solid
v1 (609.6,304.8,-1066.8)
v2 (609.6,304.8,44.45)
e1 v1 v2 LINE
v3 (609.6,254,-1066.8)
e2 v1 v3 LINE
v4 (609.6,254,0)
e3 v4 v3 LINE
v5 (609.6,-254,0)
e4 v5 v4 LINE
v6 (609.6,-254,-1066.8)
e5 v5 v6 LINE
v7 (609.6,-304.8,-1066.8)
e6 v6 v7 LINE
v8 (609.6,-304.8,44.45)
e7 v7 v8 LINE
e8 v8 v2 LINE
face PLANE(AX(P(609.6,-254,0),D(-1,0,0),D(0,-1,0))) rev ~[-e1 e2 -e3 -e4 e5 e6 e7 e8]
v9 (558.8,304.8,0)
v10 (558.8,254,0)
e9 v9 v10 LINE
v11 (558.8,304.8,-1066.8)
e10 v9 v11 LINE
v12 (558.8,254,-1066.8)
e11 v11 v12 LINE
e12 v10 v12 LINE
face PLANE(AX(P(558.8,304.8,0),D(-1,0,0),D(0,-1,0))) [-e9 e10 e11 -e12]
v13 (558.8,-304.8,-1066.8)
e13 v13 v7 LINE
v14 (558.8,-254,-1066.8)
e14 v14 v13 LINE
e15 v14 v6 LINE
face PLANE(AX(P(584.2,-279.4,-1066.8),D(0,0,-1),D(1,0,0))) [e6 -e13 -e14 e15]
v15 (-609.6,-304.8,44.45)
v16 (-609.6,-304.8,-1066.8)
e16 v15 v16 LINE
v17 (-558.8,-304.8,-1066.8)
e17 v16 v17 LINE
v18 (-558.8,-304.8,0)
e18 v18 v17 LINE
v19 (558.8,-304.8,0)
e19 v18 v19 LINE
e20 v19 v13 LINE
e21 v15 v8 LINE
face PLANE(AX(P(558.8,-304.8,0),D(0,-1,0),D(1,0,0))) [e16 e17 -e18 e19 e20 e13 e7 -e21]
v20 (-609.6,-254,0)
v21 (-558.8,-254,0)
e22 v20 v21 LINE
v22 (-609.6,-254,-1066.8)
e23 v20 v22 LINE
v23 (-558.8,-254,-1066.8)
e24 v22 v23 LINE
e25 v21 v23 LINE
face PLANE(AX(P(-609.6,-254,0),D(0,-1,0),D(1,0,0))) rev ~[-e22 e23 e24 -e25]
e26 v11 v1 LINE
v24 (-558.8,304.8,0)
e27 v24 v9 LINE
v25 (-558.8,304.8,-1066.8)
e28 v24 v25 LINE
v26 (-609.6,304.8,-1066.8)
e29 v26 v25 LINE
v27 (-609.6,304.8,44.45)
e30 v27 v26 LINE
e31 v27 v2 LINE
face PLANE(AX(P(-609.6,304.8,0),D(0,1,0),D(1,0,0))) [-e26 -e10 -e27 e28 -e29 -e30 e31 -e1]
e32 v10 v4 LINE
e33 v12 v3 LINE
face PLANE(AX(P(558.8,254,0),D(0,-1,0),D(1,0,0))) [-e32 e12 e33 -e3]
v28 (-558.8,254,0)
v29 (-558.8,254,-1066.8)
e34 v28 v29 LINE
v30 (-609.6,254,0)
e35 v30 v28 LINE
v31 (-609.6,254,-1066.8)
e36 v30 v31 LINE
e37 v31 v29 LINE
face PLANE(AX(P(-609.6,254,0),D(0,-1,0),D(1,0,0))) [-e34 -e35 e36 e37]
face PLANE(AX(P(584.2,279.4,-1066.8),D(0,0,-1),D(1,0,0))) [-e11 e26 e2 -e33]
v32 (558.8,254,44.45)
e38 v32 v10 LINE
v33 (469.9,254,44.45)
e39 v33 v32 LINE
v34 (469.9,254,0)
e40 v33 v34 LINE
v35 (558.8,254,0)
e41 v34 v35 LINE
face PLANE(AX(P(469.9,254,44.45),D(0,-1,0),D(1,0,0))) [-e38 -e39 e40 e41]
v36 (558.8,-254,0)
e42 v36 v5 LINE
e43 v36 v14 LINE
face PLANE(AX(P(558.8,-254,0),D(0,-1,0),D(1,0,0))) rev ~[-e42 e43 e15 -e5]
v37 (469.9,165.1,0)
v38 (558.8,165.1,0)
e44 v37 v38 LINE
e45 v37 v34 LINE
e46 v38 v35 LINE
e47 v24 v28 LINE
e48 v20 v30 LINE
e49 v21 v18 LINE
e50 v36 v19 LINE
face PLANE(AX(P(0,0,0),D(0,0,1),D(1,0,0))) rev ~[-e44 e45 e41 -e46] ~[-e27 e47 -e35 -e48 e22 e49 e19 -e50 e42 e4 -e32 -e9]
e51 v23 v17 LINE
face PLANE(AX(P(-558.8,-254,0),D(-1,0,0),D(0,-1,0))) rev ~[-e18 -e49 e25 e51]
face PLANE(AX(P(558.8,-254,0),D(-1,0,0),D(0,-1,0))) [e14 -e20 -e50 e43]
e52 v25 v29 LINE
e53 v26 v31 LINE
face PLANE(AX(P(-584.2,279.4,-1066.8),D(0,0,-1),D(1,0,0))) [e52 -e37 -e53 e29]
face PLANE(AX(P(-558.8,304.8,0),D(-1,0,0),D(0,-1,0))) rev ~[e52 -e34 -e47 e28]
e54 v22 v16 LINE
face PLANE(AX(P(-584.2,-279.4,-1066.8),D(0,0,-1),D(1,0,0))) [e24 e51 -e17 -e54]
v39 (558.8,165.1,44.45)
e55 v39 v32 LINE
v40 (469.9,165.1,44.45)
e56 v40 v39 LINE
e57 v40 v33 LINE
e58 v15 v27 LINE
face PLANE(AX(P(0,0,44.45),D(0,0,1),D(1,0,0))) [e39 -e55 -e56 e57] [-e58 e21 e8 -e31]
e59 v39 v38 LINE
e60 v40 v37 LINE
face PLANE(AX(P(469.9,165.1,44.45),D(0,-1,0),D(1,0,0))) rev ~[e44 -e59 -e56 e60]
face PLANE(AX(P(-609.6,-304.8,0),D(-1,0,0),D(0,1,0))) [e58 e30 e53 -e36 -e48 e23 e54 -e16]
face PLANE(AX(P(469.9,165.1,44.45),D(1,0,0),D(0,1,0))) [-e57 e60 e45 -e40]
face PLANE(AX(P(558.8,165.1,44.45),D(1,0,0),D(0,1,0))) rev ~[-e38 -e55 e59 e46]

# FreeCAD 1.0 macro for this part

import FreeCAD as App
import Part
import Sketcher

V = App.Vector
Q = App.Units.Quantity

doc = App.newDocument("Part")
body = doc.addObject("PartDesign::Body", "Body")

# Sketch on XY plane
sketch1 = body.newObject("Sketcher::SketchObject", "Sketch")
sketch1.AttachmentSupport = (doc.getObject("XY_Plane"), [""])
sketch1.MapMode = "FlatFace"
sketch1.addGeometry([
    Part.LineSegment(V(-610, 305, 0), V(-610, -305, 0)),
    Part.LineSegment(V(-610, -305, 0), V(610, -305, 0)),
    Part.LineSegment(V(610, -305, 0), V(610, 305, 0)),
    Part.LineSegment(V(610, 305, 0), V(-610, 305, 0)),
], False)
sketch1.addConstraint([
    Sketcher.Constraint("Coincident", 0, 2, 1, 1),
    Sketcher.Constraint("Coincident", 1, 2, 2, 1),
    Sketcher.Constraint("Coincident", 2, 2, 3, 1),
    Sketcher.Constraint("Coincident", 3, 2, 0, 1),
    Sketcher.Constraint("Vertical", 0),
    Sketcher.Constraint("Horizontal", 1),
    Sketcher.Constraint("Vertical", 2),
    Sketcher.Constraint("Horizontal", 3),
    Sketcher.Constraint("Symmetric", 0, 2, 2, 2, -1, 1),
    Sketcher.Constraint("DistanceX", 1, 1, 1, 2, Q("48 in")),
    Sketcher.Constraint("DistanceY", 0, 2, 0, 1, Q("24 in")),
])
pad1 = body.newObject("PartDesign::Pad", "Pad")
pad1.Profile = sketch1
pad1.Length = Q("1.75 in")

# Sketch on XY plane
sketch2 = body.newObject("Sketcher::SketchObject", "Sketch001")
sketch2.AttachmentSupport = (doc.getObject("XY_Plane"), [""])
sketch2.MapMode = "FlatFace"
sketch2.AttachmentOffset = App.Placement(V(0, 0, 1.75 * 25.4), App.Rotation())
sketch2.addGeometry([
    Part.LineSegment(V(470, 254, 0), V(470, 165, 0)),
    Part.LineSegment(V(470, 165, 0), V(559, 165, 0)),
    Part.LineSegment(V(559, 165, 0), V(559, 254, 0)),
    Part.LineSegment(V(559, 254, 0), V(470, 254, 0)),
], False)
sketch2.addConstraint([
    Sketcher.Constraint("Coincident", 0, 2, 1, 1),
    Sketcher.Constraint("Coincident", 1, 2, 2, 1),
    Sketcher.Constraint("Coincident", 2, 2, 3, 1),
    Sketcher.Constraint("Coincident", 3, 2, 0, 1),
    Sketcher.Constraint("Vertical", 0),
    Sketcher.Constraint("Horizontal", 1),
    Sketcher.Constraint("Vertical", 2),
    Sketcher.Constraint("Horizontal", 3),
    Sketcher.Constraint("Equal", 3, 0),
    Sketcher.Constraint("DistanceX", 1, 1, 1, 2, Q("3.5 in")),
    Sketcher.Constraint("DistanceX", -1, 1, 1, 2, Q("22 in")),
    Sketcher.Constraint("DistanceY", -1, 1, 2, 2, Q("10 in")),
])
pocket1 = body.newObject("PartDesign::Pocket", "Pocket")
pocket1.Profile = sketch2
pocket1.Type = "ThroughAll"

# Sketch on XY plane
sketch3 = body.newObject("Sketcher::SketchObject", "Sketch002")
sketch3.AttachmentSupport = (doc.getObject("XY_Plane"), [""])
sketch3.MapMode = "FlatFace"
sketch3.addGeometry([
    Part.LineSegment(V(559, -305, 0), V(559, -254, 0)),  # 0
    Part.LineSegment(V(559, -254, 0), V(610, -254, 0)),  # 1
    Part.LineSegment(V(610, -254, 0), V(610, -305, 0)),  # 2
    Part.LineSegment(V(610, -305, 0), V(559, -305, 0)),  # 3
    Part.LineSegment(V(-610, -305, 0), V(-610, -254, 0)),  # 4
    Part.LineSegment(V(-610, -254, 0), V(-559, -254, 0)),  # 5
    Part.LineSegment(V(-559, -254, 0), V(-559, -305, 0)),  # 6
    Part.LineSegment(V(-559, -305, 0), V(-610, -305, 0)),  # 7
    Part.LineSegment(V(-610, 254, 0), V(-610, 305, 0)),  # 8
    Part.LineSegment(V(-610, 305, 0), V(-559, 305, 0)),  # 9
    Part.LineSegment(V(-559, 305, 0), V(-559, 254, 0)),  # 10
    Part.LineSegment(V(-559, 254, 0), V(-610, 254, 0)),  # 11
    Part.LineSegment(V(559, 254, 0), V(559, 305, 0)),  # 12
    Part.LineSegment(V(559, 305, 0), V(610, 305, 0)),  # 13
    Part.LineSegment(V(610, 305, 0), V(610, 254, 0)),  # 14
    Part.LineSegment(V(610, 254, 0), V(559, 254, 0)),  # 15
], False)
sketch3.addConstraint([
    Sketcher.Constraint("Coincident", 0, 2, 1, 1),
    Sketcher.Constraint("Coincident", 1, 2, 2, 1),
    Sketcher.Constraint("Coincident", 2, 2, 3, 1),
    Sketcher.Constraint("Coincident", 3, 2, 0, 1),
    Sketcher.Constraint("Coincident", 4, 2, 5, 1),
    Sketcher.Constraint("Coincident", 5, 2, 6, 1),
    Sketcher.Constraint("Coincident", 6, 2, 7, 1),
    Sketcher.Constraint("Coincident", 7, 2, 4, 1),
    Sketcher.Constraint("Coincident", 8, 2, 9, 1),
    Sketcher.Constraint("Coincident", 9, 2, 10, 1),
    Sketcher.Constraint("Coincident", 10, 2, 11, 1),
    Sketcher.Constraint("Coincident", 11, 2, 8, 1),
    Sketcher.Constraint("Coincident", 12, 2, 13, 1),
    Sketcher.Constraint("Coincident", 13, 2, 14, 1),
    Sketcher.Constraint("Coincident", 14, 2, 15, 1),
    Sketcher.Constraint("Coincident", 15, 2, 12, 1),
    Sketcher.Constraint("Vertical", 0),
    Sketcher.Constraint("Horizontal", 1),
    Sketcher.Constraint("Vertical", 2),
    Sketcher.Constraint("Horizontal", 3),
    Sketcher.Constraint("Vertical", 4),
    Sketcher.Constraint("Horizontal", 5),
    Sketcher.Constraint("Vertical", 6),
    Sketcher.Constraint("Horizontal", 7),
    Sketcher.Constraint("Vertical", 8),
    Sketcher.Constraint("Horizontal", 9),
    Sketcher.Constraint("Vertical", 10),
    Sketcher.Constraint("Horizontal", 11),
    Sketcher.Constraint("Vertical", 12),
    Sketcher.Constraint("Horizontal", 13),
    Sketcher.Constraint("Vertical", 14),
    Sketcher.Constraint("Horizontal", 15),
    Sketcher.Constraint("Symmetric", 2, 2, 8, 2, -1, 1),
    Sketcher.Constraint("Symmetric", 0, 2, 10, 2, -1, 1),
    Sketcher.Constraint("Symmetric", 6, 2, 12, 2, -1, 1),
    Sketcher.Constraint("Symmetric", 4, 2, 14, 2, -1, 1),
    Sketcher.Constraint("Symmetric", 1, 2, 4, 2, -2),
    Sketcher.Constraint("Symmetric", 3, 2, 6, 2, -2),
    Sketcher.Constraint("Equal", 15, 0),
    Sketcher.Constraint("DistanceX", 1, 1, 1, 2, Q("2 in")),
    Sketcher.Constraint("DistanceX", -1, 1, 0, 2, Q("22 in")),
    Sketcher.Constraint("DistanceY", 0, 2, -1, 1, Q("10 in")),
])
pad2 = body.newObject("PartDesign::Pad", "Pad001")
pad2.Profile = sketch3
pad2.Length = Q("42 in")
pad2.Reversed = True

doc.recompute()
